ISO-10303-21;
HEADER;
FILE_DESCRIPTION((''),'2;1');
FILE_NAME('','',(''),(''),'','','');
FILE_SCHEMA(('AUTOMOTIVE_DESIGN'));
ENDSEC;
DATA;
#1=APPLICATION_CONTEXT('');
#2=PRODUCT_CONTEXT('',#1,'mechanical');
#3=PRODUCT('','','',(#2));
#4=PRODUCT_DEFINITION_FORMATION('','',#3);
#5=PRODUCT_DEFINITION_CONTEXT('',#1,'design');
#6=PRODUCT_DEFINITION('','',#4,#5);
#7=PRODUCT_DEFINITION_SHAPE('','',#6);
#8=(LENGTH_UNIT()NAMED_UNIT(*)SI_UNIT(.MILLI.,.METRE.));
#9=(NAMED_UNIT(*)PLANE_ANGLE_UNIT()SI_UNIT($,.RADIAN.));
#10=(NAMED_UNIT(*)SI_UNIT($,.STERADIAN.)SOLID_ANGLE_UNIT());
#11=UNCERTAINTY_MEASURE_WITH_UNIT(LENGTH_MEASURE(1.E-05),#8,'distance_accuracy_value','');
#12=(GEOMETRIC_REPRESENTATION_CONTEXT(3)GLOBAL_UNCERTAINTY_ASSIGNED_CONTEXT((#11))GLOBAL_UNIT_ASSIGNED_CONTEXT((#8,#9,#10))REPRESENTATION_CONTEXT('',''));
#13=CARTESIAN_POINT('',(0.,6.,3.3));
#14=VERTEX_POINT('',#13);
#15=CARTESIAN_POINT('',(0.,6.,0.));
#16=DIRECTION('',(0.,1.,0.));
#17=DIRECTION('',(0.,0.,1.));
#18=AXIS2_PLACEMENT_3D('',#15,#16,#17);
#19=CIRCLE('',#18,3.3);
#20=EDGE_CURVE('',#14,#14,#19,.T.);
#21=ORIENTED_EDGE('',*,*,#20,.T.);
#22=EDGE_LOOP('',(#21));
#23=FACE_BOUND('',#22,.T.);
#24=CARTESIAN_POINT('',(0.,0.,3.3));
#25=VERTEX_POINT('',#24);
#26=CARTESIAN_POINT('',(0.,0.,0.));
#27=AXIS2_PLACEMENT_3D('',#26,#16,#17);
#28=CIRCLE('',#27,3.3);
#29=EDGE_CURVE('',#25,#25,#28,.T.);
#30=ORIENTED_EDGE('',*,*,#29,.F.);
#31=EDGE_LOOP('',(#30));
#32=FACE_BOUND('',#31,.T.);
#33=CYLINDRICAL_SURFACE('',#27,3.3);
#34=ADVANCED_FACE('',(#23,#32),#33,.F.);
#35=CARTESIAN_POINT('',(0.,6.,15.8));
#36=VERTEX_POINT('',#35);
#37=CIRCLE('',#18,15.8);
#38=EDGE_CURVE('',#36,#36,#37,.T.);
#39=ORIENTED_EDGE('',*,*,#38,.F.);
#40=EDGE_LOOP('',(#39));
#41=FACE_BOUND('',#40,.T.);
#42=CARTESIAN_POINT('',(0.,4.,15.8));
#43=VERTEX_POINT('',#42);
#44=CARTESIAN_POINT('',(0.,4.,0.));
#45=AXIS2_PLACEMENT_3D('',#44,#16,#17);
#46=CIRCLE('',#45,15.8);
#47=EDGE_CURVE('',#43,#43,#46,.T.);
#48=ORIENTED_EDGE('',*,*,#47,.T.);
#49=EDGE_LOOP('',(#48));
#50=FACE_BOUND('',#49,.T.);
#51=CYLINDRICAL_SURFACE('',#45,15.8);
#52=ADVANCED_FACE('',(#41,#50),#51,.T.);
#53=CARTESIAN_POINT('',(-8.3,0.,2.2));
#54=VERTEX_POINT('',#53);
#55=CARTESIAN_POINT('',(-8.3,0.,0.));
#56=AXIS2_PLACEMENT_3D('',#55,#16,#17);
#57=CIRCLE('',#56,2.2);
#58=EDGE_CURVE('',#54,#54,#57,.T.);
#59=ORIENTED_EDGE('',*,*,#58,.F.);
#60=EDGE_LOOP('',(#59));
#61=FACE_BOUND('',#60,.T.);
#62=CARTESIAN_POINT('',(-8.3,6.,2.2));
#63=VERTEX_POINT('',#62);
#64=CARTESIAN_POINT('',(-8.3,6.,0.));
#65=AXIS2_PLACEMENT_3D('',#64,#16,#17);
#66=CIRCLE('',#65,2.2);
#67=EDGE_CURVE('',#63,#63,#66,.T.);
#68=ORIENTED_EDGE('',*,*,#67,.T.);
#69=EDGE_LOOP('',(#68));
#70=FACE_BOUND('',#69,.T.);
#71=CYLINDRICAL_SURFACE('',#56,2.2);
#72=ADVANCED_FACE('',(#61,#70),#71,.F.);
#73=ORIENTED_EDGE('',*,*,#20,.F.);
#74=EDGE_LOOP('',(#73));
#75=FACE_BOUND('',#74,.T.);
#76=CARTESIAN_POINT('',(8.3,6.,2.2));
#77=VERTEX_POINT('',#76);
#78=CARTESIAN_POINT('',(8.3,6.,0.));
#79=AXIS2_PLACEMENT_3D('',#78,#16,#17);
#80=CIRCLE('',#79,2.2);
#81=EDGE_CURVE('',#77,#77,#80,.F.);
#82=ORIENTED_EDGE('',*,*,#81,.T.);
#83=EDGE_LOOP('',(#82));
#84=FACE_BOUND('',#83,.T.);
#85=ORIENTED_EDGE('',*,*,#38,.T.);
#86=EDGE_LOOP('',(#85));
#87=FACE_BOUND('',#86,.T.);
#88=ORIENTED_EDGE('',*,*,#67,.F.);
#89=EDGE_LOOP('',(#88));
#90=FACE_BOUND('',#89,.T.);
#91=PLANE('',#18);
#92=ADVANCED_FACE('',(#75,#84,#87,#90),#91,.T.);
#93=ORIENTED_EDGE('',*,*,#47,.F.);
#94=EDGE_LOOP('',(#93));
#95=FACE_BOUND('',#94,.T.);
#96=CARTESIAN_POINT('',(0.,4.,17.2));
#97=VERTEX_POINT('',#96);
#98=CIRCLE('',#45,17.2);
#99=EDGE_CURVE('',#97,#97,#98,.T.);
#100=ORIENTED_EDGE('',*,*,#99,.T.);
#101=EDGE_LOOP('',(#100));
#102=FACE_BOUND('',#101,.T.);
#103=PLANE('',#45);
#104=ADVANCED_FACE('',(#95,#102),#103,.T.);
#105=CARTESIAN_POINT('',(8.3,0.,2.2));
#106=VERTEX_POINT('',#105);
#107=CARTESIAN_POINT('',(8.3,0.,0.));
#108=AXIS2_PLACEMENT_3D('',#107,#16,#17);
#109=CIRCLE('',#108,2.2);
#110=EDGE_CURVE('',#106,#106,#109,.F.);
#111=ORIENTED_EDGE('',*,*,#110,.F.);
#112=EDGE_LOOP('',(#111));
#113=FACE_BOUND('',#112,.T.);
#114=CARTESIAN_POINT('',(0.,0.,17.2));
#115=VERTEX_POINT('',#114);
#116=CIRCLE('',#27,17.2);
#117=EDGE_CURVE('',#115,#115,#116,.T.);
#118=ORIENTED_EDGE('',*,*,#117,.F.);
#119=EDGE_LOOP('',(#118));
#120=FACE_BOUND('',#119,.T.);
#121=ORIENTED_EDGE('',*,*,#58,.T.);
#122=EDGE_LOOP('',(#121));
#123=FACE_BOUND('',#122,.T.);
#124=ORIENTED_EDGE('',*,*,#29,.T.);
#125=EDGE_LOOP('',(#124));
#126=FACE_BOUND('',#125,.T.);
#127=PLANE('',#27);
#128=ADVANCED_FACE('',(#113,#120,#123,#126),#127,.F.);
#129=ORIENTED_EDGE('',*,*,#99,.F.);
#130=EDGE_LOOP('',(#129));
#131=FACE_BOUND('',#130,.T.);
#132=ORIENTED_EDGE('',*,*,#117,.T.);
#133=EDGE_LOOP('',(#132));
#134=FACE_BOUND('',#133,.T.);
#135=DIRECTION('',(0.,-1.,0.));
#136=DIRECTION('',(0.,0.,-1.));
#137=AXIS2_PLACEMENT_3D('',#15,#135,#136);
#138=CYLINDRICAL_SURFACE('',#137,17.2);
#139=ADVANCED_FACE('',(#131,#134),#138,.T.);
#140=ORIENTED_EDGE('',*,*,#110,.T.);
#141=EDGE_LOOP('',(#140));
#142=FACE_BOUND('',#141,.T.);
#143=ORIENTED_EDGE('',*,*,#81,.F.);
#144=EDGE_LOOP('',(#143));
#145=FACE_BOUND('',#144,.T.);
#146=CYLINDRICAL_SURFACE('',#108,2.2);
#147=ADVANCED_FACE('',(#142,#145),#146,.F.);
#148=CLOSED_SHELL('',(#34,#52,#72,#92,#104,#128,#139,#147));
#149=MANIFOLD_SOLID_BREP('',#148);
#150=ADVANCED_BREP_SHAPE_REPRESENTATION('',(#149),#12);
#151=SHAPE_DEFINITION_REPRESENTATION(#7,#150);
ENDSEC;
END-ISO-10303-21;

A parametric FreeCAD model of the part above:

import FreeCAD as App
import Part
import Sketcher
from FreeCAD import Vector
Q = App.Units.Quantity


def add_polygon(sketch, points):
    """Adds a closed chain of lines whose ends are joined by coincident constraints."""
    first, n = sketch.GeometryCount, len(points)
    for a, b in zip(points, points[1:] + points[:1]):
        sketch.addGeometry(Part.LineSegment(App.Vector(*a, 0), App.Vector(*b, 0)), False)
    for i in range(n):
        sketch.addConstraint(Sketcher.Constraint("Coincident", first + i, 2, first + (i + 1) % n, 1))

doc = App.newDocument("Part")
body = doc.addObject("PartDesign::Body", "Body")

sketch1 = doc.addObject("Sketcher::SketchObject", "Sketch")
body.addObject(sketch1)
sketch1.AttachmentSupport = (doc.XZ_Plane, [""])
sketch1.MapMode = "FlatFace"
sketch1.addGeometry(Part.Circle(Vector(0, 0, 0), Vector(0, 0, 1), 17), False)
sketch1.addConstraint(Sketcher.Constraint("Coincident", 0, 3, -1, 1))
sketch1.addConstraint(Sketcher.Constraint("Diameter", 0, Q("34.4 mm")))
pad1 = doc.addObject("PartDesign::Pad", "Pad")
body.addObject(pad1)
pad1.Profile = sketch1
pad1.Length = 6
pad1.Reversed = True

sketch2 = doc.addObject("Sketcher::SketchObject", "Sketch001")
body.addObject(sketch2)
sketch2.AttachmentSupport = (doc.XZ_Plane, [""])
sketch2.MapMode = "FlatFace"
sketch2.AttachmentOffset = App.Placement(Vector(0, 0, -6), App.Rotation())
add_polygon(sketch2, [(-23, -23), (-23, 23), (23, 23), (23, -23)])
sketch2.addGeometry(Part.Circle(Vector(0, 0, 0), Vector(0, 0, 1), 16), False)
sketch2.addConstraint(Sketcher.Constraint("Vertical", 0))
sketch2.addConstraint(Sketcher.Constraint("Horizontal", 1))
sketch2.addConstraint(Sketcher.Constraint("Vertical", 2))
sketch2.addConstraint(Sketcher.Constraint("Horizontal", 3))
sketch2.addConstraint(Sketcher.Constraint("Coincident", 4, 3, -1, 1))
sketch2.addConstraint(Sketcher.Constraint("Symmetric", 0, 2, 2, 2, -1, 1))
sketch2.addConstraint(Sketcher.Constraint("Equal", 3, 0))
sketch2.addConstraint(Sketcher.Constraint("Diameter", 4, Q("31.6 mm")))
sketch2.addConstraint(Sketcher.Constraint("DistanceX", 1, 1, 1, 2, Q("46.204 mm")))
pocket1 = doc.addObject("PartDesign::Pocket", "Pocket")
body.addObject(pocket1)
pocket1.Profile = sketch2
pocket1.Length = 2
pocket1.Reversed = True

sketch3 = doc.addObject("Sketcher::SketchObject", "Sketch002")
body.addObject(sketch3)
sketch3.AttachmentSupport = (doc.XZ_Plane, [""])
sketch3.MapMode = "FlatFace"
sketch3.AttachmentOffset = App.Placement(Vector(0, 0, -6), App.Rotation())
sketch3.addGeometry(Part.Circle(Vector(0, 0, 0), Vector(0, 0, 1), 3.3), False)
sketch3.addGeometry(Part.Circle(Vector(-8.3, 0, 0), Vector(0, 0, 1), 2.2), False)
sketch3.addGeometry(Part.Circle(Vector(8.3, 0, 0), Vector(0, 0, 1), 2.2), False)
sketch3.addConstraint(Sketcher.Constraint("Coincident", 0, 3, -1, 1))
sketch3.addConstraint(Sketcher.Constraint("Equal", 1, 2))
sketch3.addConstraint(Sketcher.Constraint("Symmetric", 1, 3, 2, 3, -1, 1))
sketch3.addConstraint(Sketcher.Constraint("PointOnObject", 1, 3, -1))
sketch3.addConstraint(Sketcher.Constraint("Diameter", 0, Q("6.6 mm")))
sketch3.addConstraint(Sketcher.Constraint("Diameter", 1, Q("4.4 mm")))
sketch3.addConstraint(Sketcher.Constraint("DistanceX", 1, 3, -1, 1, Q("8.3 mm")))
pocket2 = doc.addObject("PartDesign::Pocket", "Pocket001")
body.addObject(pocket2)
pocket2.Profile = sketch3
pocket2.Type = "ThroughAll"
pocket2.Reversed = True

doc.recompute()
